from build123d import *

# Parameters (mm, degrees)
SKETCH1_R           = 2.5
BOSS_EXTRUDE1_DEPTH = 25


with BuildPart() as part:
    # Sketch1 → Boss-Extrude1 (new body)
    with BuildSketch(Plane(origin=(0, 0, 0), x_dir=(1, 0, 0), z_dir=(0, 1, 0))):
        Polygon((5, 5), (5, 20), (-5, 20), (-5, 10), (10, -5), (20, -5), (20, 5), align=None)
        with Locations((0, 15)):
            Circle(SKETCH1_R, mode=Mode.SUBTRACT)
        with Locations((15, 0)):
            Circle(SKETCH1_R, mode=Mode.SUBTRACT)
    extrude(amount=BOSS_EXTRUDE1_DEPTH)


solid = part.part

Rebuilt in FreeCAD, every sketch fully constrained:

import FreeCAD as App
import Part
import Sketcher

doc = App.newDocument("Part")
body = doc.addObject("PartDesign::Body", "Body")

# Sketch on XZ plane
sketch1 = body.newObject("Sketcher::SketchObject", "Sketch")
sketch1.AttachmentSupport = (doc.getObject("XZ_Plane"), [""])
sketch1.MapMode = "FlatFace"
sketch1.addGeometry([
    Part.LineSegment(App.Vector(5, -5, 0), App.Vector(5, -20, 0)),  # 0
    Part.LineSegment(App.Vector(5, -20, 0), App.Vector(-5, -20, 0)),  # 1
    Part.LineSegment(App.Vector(-5, -20, 0), App.Vector(-5, -10, 0)),  # 2
    Part.LineSegment(App.Vector(-5, -10, 0), App.Vector(10, 5, 0)),  # 3
    Part.LineSegment(App.Vector(10, 5, 0), App.Vector(20, 5, 0)),  # 4
    Part.LineSegment(App.Vector(20, 5, 0), App.Vector(20, -5, 0)),  # 5
    Part.LineSegment(App.Vector(20, -5, 0), App.Vector(5, -5, 0)),  # 6
    Part.Circle(App.Vector(15, 0, 0), App.Vector(0, 0, 1), 2.5),  # 7
    Part.Circle(App.Vector(0, -15, 0), App.Vector(0, 0, 1), 2.5),  # 8
], False)
sketch1.addConstraint([
    Sketcher.Constraint("Coincident", 0, 2, 1, 1),
    Sketcher.Constraint("Coincident", 1, 2, 2, 1),
    Sketcher.Constraint("Coincident", 2, 2, 3, 1),
    Sketcher.Constraint("Coincident", 3, 2, 4, 1),
    Sketcher.Constraint("Coincident", 4, 2, 5, 1),
    Sketcher.Constraint("Coincident", 5, 2, 6, 1),
    Sketcher.Constraint("Coincident", 6, 2, 0, 1),
    Sketcher.Constraint("Vertical", 0),
    Sketcher.Constraint("Horizontal", 1),
    Sketcher.Constraint("Vertical", 2),
    Sketcher.Constraint("Horizontal", 4),
    Sketcher.Constraint("Vertical", 5),
    Sketcher.Constraint("Horizontal", 6),
    Sketcher.Constraint("Equal", 7, 8),
    Sketcher.Constraint("PointOnObject", 7, 3, -1),
    Sketcher.Constraint("PointOnObject", 8, 3, -2),
    Sketcher.Constraint("Equal", 1, 4),
    Sketcher.Constraint("Equal", 6, 0),
    Sketcher.Constraint("Equal", 4, 2),
    Sketcher.Constraint("Equal", 2, 5),
    Sketcher.Constraint("Diameter", 7, 5.0),
    Sketcher.Constraint("DistanceX", 1, 2, 1, 1, 10.0),
    Sketcher.Constraint("DistanceX", 6, 2, 6, 1, 15.0),
    Sketcher.Constraint("DistanceX", -1, 1, 7, 3, 15.0),
    Sketcher.Constraint("DistanceY", 8, 3, -1, 1, 15.0),
    Sketcher.Constraint("DistanceX", -1, 1, 0, 2, 5.0),
    Sketcher.Constraint("DistanceY", 0, 2, -1, 1, 20.0),
])
pad1 = body.newObject("PartDesign::Pad", "Pad")
pad1.Profile = sketch1
pad1.Length = 25
pad1.Reversed = True

doc.recompute()
